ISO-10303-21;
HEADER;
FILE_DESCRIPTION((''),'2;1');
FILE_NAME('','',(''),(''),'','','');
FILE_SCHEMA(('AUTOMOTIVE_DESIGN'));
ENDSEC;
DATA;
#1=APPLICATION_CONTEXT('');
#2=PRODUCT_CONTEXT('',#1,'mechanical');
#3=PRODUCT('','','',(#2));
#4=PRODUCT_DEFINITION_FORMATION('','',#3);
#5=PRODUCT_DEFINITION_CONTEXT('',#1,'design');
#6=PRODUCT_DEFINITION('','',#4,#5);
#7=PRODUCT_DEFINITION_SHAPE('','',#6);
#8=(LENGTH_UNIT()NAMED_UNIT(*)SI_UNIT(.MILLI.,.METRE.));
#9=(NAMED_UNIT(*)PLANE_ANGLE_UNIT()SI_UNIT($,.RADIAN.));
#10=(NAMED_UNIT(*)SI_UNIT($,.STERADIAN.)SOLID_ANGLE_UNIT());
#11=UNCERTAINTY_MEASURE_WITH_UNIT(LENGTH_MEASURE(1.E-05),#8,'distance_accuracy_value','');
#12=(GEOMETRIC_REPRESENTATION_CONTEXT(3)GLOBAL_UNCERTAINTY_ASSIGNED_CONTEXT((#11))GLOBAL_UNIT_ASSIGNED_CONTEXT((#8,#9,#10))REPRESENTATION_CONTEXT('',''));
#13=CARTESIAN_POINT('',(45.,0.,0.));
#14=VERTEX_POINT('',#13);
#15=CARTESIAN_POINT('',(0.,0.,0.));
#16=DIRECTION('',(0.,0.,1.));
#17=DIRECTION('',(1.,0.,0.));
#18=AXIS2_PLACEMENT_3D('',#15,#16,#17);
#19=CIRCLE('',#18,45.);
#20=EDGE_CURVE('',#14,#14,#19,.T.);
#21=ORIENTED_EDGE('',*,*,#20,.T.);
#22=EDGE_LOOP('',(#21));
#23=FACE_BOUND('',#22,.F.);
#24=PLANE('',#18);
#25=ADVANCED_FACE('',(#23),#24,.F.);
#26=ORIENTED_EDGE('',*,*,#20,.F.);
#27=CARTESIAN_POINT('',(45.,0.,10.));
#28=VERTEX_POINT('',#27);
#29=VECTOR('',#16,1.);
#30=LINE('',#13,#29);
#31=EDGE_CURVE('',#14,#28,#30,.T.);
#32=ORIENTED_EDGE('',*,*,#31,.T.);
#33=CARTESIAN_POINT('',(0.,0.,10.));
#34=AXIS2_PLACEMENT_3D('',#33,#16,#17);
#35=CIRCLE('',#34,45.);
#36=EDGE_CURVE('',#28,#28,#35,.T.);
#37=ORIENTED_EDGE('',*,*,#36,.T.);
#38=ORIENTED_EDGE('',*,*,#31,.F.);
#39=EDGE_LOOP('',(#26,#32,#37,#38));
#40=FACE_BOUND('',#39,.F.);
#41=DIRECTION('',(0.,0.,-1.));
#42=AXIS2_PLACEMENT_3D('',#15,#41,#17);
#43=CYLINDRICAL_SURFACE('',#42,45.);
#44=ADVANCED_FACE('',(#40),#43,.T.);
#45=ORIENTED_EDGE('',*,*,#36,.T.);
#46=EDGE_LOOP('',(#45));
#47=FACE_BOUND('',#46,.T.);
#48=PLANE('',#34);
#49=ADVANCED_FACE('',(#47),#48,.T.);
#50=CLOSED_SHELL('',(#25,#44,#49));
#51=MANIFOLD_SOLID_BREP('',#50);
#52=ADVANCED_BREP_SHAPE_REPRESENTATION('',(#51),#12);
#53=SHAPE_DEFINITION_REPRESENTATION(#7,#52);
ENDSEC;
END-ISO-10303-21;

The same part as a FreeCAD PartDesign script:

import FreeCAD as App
import Part
import Sketcher
from FreeCAD import Vector

doc = App.newDocument("Part")
body = doc.addObject("PartDesign::Body", "Body")

sketch1 = body.newObject("Sketcher::SketchObject", "Sketch")
sketch1.AttachmentSupport = (doc.getObject("XY_Plane"), [""])
sketch1.MapMode = "FlatFace"
sketch1.addGeometry(Part.Circle(Vector(0, 0, 0), Vector(0, 0, 1), 45), False)
sketch1.addConstraint(Sketcher.Constraint("Coincident", 0, 3, -1, 1))
sketch1.addConstraint(Sketcher.Constraint("Diameter", 0, 90.0))
pad1 = body.newObject("PartDesign::Pad", "Pad")
pad1.Profile = sketch1
pad1.Length = 10

doc.recompute()
